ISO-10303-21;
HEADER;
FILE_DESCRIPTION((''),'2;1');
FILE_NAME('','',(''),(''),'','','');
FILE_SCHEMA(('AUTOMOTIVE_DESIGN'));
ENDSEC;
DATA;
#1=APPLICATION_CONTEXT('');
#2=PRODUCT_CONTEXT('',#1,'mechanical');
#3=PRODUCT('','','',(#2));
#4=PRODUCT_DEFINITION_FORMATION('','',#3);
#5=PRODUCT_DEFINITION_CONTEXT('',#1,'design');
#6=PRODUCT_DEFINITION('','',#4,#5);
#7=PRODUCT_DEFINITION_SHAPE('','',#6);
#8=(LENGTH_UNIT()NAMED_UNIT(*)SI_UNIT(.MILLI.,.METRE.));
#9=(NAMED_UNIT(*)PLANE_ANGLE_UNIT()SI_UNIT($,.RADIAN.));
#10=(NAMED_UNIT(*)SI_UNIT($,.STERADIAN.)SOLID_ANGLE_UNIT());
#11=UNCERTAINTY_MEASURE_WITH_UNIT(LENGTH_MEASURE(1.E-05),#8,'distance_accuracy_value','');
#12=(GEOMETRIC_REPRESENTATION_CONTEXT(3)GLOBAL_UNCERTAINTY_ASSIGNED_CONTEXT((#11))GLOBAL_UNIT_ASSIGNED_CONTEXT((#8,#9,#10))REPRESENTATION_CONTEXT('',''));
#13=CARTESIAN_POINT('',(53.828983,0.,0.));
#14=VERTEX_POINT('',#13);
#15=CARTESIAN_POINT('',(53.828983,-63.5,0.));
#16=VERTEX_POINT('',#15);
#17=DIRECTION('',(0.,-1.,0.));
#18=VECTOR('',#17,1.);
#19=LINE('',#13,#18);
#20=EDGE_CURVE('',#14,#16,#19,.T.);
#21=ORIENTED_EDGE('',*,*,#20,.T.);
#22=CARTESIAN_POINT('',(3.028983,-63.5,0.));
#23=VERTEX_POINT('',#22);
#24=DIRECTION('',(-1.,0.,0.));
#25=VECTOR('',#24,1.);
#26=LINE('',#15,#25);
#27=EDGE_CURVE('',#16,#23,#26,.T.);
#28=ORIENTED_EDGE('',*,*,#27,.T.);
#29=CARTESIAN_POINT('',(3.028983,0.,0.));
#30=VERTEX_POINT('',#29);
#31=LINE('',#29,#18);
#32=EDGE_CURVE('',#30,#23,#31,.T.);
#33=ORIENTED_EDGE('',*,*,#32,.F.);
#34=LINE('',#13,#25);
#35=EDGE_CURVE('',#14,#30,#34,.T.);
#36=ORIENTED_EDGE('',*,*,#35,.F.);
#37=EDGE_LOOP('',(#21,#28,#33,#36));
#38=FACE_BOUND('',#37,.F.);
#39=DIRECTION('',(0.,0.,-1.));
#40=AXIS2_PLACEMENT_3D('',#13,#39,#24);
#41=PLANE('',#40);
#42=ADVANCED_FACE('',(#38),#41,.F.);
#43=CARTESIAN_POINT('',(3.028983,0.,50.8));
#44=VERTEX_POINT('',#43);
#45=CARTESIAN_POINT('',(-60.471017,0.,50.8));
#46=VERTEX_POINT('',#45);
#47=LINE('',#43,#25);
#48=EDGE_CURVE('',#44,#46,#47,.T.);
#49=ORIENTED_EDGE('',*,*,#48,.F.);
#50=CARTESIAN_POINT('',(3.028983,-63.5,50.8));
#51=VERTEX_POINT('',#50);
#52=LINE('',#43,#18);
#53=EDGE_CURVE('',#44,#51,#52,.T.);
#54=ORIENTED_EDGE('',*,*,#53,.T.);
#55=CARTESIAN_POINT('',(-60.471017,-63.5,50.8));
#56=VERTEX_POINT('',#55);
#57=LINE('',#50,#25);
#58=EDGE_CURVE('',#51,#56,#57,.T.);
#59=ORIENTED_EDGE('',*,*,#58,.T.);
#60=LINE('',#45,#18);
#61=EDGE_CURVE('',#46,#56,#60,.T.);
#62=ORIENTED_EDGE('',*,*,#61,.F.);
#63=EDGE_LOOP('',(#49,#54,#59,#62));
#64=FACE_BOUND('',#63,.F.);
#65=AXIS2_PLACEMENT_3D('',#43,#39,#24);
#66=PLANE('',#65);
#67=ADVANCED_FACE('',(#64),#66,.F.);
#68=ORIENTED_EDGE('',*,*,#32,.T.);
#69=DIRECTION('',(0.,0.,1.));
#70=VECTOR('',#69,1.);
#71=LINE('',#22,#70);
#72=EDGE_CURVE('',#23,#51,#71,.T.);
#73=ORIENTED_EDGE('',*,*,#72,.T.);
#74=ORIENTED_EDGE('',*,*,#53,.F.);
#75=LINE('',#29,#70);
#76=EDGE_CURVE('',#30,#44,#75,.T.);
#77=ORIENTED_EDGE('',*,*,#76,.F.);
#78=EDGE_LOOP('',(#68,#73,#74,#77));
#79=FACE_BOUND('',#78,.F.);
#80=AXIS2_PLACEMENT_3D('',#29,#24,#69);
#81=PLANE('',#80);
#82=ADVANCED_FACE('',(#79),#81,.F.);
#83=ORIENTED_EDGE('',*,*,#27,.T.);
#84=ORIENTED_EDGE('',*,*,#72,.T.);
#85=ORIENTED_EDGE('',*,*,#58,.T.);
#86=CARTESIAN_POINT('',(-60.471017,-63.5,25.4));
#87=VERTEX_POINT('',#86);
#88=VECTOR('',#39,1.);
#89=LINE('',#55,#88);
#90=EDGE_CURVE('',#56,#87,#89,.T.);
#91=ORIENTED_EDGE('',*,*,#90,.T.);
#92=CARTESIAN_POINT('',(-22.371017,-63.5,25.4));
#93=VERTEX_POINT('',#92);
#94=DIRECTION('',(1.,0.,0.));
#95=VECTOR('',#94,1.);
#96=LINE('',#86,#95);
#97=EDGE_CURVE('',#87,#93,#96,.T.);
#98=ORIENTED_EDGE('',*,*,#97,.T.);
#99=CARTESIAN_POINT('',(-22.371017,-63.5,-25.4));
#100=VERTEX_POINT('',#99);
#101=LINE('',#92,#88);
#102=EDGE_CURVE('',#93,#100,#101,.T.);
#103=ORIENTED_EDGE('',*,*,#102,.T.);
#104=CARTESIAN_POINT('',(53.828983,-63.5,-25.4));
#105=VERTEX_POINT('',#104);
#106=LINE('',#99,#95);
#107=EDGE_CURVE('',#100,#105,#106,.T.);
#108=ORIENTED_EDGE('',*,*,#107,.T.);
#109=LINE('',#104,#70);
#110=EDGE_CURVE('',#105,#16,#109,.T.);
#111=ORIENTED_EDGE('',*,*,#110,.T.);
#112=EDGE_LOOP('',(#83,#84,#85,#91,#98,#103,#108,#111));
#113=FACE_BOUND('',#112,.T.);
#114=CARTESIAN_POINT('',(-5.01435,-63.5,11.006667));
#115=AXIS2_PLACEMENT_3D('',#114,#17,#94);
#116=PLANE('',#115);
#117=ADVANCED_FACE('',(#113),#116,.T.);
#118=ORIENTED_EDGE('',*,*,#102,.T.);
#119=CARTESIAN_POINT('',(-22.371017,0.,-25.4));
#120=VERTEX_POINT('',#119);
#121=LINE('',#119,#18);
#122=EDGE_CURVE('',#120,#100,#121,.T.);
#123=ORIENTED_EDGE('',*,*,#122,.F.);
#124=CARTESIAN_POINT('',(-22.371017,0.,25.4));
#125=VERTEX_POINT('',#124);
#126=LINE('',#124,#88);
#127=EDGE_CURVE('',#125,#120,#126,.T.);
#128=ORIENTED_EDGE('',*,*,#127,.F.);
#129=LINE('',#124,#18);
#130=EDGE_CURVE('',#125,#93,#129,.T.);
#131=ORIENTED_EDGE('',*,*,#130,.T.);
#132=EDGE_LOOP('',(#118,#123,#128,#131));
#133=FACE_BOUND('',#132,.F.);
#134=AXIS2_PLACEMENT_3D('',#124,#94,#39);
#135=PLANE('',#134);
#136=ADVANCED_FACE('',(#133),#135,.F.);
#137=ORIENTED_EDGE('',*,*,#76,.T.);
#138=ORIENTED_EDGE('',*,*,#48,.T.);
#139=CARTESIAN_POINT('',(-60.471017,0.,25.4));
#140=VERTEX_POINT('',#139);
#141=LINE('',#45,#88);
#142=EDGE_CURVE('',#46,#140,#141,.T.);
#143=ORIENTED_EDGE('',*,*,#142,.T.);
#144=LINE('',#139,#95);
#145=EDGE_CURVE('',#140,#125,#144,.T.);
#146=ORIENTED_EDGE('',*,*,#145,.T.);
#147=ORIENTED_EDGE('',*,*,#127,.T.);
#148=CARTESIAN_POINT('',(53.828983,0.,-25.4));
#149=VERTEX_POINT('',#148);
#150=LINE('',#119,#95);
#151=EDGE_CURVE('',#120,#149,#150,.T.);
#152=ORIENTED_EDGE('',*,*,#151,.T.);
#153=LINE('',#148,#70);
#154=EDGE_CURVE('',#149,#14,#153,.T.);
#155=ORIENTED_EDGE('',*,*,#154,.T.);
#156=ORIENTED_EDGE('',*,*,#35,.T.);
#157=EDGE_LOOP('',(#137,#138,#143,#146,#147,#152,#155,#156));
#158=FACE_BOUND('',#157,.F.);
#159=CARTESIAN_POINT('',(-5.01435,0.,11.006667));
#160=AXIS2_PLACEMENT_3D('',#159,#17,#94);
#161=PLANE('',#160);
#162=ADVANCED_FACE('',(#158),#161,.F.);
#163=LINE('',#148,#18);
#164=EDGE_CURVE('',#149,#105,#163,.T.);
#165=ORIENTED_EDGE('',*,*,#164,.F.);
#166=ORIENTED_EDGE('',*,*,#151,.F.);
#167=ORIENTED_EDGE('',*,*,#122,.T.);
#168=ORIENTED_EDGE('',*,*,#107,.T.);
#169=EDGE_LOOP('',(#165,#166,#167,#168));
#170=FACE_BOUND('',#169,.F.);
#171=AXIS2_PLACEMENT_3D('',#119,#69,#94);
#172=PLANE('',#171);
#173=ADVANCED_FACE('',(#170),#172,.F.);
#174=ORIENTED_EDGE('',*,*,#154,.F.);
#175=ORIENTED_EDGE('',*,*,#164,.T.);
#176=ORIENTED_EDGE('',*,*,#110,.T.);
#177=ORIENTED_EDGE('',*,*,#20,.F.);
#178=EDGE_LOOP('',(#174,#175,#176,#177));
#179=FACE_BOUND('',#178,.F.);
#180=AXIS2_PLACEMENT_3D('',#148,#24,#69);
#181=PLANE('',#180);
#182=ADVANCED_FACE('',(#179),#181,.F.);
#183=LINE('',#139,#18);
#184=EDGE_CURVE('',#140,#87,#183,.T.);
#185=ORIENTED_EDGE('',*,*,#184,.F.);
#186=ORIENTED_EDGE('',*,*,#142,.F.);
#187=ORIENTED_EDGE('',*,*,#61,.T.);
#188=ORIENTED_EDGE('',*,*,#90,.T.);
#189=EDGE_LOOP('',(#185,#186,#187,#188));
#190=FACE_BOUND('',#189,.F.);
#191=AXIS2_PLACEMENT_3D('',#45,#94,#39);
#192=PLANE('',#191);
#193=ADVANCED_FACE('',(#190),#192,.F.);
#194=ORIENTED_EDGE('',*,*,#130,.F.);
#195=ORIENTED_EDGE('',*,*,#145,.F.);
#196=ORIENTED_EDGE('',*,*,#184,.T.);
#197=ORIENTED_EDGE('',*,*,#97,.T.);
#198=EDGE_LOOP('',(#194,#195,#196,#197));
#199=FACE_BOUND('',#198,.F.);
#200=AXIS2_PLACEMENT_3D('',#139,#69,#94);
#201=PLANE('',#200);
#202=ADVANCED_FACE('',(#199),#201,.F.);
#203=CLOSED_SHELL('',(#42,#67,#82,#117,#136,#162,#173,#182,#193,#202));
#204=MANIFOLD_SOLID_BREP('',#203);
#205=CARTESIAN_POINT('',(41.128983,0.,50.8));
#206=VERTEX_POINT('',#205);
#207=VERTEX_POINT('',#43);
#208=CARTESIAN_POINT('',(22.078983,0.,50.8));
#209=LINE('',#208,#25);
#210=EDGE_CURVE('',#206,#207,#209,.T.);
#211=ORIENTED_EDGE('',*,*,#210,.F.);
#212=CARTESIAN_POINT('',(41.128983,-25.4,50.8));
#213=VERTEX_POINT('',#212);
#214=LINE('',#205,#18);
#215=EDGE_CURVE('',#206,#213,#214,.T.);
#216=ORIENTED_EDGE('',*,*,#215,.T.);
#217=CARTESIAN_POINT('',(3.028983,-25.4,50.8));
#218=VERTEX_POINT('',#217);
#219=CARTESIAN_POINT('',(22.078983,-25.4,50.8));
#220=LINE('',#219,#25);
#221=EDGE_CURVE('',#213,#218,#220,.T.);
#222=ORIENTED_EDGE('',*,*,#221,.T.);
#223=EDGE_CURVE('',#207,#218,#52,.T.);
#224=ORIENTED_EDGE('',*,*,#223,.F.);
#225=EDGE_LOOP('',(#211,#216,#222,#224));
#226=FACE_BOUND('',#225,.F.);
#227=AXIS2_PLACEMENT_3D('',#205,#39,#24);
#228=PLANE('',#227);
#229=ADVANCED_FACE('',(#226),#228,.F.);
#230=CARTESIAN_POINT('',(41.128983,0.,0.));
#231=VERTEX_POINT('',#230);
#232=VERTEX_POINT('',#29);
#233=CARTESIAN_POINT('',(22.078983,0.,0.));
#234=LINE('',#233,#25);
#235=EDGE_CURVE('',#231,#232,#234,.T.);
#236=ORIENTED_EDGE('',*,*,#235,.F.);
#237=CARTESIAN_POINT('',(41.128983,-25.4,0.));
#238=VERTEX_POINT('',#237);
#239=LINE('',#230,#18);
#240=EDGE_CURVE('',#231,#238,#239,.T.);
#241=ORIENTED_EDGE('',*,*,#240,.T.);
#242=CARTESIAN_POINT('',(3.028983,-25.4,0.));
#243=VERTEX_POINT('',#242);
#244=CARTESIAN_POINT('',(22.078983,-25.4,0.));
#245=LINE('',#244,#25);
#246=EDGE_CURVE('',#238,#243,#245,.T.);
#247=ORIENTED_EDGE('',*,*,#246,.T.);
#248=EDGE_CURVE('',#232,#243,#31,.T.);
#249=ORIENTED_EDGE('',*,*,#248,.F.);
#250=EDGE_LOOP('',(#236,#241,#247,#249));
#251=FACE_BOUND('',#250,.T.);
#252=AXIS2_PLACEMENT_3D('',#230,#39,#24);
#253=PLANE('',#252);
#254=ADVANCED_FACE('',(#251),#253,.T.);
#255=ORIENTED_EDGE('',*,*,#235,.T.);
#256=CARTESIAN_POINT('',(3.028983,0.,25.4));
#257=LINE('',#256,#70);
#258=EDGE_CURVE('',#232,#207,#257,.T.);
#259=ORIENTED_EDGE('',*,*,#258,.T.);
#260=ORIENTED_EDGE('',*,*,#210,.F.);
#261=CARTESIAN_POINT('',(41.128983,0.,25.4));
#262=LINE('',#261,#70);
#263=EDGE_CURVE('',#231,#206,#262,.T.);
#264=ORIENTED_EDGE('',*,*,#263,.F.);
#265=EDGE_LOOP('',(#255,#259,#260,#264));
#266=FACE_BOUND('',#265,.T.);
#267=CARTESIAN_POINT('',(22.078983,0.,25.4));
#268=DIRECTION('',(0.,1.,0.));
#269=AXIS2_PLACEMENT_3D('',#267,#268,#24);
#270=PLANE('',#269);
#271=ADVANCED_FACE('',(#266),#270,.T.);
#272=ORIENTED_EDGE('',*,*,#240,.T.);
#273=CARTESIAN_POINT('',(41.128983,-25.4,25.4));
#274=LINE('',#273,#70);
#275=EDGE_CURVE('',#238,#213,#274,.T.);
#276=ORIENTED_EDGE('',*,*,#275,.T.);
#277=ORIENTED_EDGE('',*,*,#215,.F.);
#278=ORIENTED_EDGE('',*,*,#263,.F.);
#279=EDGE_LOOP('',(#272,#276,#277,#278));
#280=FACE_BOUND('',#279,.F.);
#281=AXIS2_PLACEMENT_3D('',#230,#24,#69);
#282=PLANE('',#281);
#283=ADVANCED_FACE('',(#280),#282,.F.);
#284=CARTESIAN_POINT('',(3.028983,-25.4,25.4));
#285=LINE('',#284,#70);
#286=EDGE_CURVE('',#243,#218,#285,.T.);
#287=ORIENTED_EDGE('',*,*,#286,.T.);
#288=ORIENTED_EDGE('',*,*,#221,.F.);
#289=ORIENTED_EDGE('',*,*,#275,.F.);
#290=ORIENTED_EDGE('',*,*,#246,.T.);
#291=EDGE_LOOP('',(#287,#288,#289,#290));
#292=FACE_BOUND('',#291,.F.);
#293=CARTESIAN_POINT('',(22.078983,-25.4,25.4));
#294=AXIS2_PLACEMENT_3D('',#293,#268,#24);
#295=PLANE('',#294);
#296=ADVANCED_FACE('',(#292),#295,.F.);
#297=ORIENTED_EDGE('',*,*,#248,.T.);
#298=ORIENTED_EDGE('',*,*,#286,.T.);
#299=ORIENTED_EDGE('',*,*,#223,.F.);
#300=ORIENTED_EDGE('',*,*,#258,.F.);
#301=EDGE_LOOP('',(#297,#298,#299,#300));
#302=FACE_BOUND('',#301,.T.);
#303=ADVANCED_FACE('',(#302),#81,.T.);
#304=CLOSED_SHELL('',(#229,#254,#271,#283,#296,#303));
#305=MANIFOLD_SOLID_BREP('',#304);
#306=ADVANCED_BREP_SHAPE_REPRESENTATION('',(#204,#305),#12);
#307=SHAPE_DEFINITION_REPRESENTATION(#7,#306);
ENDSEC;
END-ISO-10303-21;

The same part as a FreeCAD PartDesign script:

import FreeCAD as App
import Part
import Sketcher
from FreeCAD import Vector
Q = App.Units.Quantity

doc = App.newDocument("Part")
body = doc.addObject("PartDesign::Body", "Body")

sketch1 = body.newObject("Sketcher::SketchObject", "Sketch")
sketch1.AttachmentSupport = (doc.getObject("XZ_Plane"), [""])
sketch1.MapMode = "FlatFace"
sketch1.addGeometry([
    Part.LineSegment(Vector(3.028983, 50.8, 0), Vector(-60.471017, 50.8, 0)),
    Part.LineSegment(Vector(-60.471017, 50.8, 0), Vector(-60.471017, 25.4, 0)),
    Part.LineSegment(Vector(-60.471017, 25.4, 0), Vector(-22.371017, 25.4, 0)),
    Part.LineSegment(Vector(-22.371017, 25.4, 0), Vector(-22.371017, -25.4, 0)),
    Part.LineSegment(Vector(-22.371017, -25.4, 0), Vector(53.828983, -25.4, 0)),
    Part.LineSegment(Vector(53.828983, -25.4, 0), Vector(53.828983, 0, 0)),
    Part.LineSegment(Vector(53.828983, 0, 0), Vector(3.028983, 0, 0)),
    Part.LineSegment(Vector(3.028983, 0, 0), Vector(3.028983, 50.8, 0)),
], False)
sketch1.addConstraint([
    Sketcher.Constraint("Coincident", 0, 2, 1, 1),
    Sketcher.Constraint("Coincident", 1, 2, 2, 1),
    Sketcher.Constraint("Coincident", 2, 2, 3, 1),
    Sketcher.Constraint("Coincident", 3, 2, 4, 1),
    Sketcher.Constraint("Coincident", 4, 2, 5, 1),
    Sketcher.Constraint("Coincident", 5, 2, 6, 1),
    Sketcher.Constraint("Coincident", 6, 2, 7, 1),
    Sketcher.Constraint("Coincident", 7, 2, 0, 1),
    Sketcher.Constraint("Horizontal", 0),
    Sketcher.Constraint("Vertical", 1),
    Sketcher.Constraint("Horizontal", 2),
    Sketcher.Constraint("Vertical", 3),
    Sketcher.Constraint("Horizontal", 4),
    Sketcher.Constraint("Vertical", 5),
    Sketcher.Constraint("Horizontal", 6),
    Sketcher.Constraint("Vertical", 7),
    Sketcher.Constraint("PointOnObject", 5, 2, -1),
    Sketcher.Constraint("Equal", 6, 3),
    Sketcher.Constraint("Equal", 1, 5),
    Sketcher.Constraint("DistanceX", 4, 1, 4, 2, Q("3 in")),
    Sketcher.Constraint("DistanceX", 6, 2, 6, 1, Q("2 in")),
    Sketcher.Constraint("DistanceY", 1, 2, 1, 1, Q("1 in")),
    Sketcher.Constraint("DistanceX", 0, 2, 0, 1, Q("2.5 in")),
    Sketcher.Constraint("DistanceX", 0, 2, -1, 1, Q("60.471017 mm")),
])
pad1 = body.newObject("PartDesign::Pad", "Pad")
pad1.Profile = sketch1
pad1.Length = Q("2.5 in")
body2 = doc.addObject("PartDesign::Body", "Body001")

sketch2 = body2.newObject("Sketcher::SketchObject", "Sketch001")
sketch2.AttachmentSupport = (doc.getObject("XZ_Plane001"), [""])
sketch2.MapMode = "FlatFace"
sketch2.addGeometry([
    Part.LineSegment(Vector(41.128983, 50.8, 0), Vector(41.128983, 0, 0)),
    Part.LineSegment(Vector(41.128983, 0, 0), Vector(3.028983, 0, 0)),
    Part.LineSegment(Vector(3.028983, 0, 0), Vector(3.028983, 50.8, 0)),
    Part.LineSegment(Vector(3.028983, 50.8, 0), Vector(41.128983, 50.8, 0)),
], False)
sketch2.addConstraint([
    Sketcher.Constraint("Coincident", 0, 2, 1, 1),
    Sketcher.Constraint("Coincident", 1, 2, 2, 1),
    Sketcher.Constraint("Coincident", 2, 2, 3, 1),
    Sketcher.Constraint("Coincident", 3, 2, 0, 1),
    Sketcher.Constraint("Vertical", 0),
    Sketcher.Constraint("Horizontal", 1),
    Sketcher.Constraint("Vertical", 2),
    Sketcher.Constraint("Horizontal", 3),
    Sketcher.Constraint("PointOnObject", 0, 2, -1),
    Sketcher.Constraint("DistanceY", 0, 2, 0, 1, Q("2 in")),
    Sketcher.Constraint("DistanceX", 1, 2, 1, 1, Q("1.5 in")),
    Sketcher.Constraint("DistanceX", -1, 1, 0, 2, Q("41.128983 mm")),
])
pad2 = body2.newObject("PartDesign::Pad", "Pad001")
pad2.Profile = sketch2
pad2.Length = Q("1 in")

doc.recompute()
